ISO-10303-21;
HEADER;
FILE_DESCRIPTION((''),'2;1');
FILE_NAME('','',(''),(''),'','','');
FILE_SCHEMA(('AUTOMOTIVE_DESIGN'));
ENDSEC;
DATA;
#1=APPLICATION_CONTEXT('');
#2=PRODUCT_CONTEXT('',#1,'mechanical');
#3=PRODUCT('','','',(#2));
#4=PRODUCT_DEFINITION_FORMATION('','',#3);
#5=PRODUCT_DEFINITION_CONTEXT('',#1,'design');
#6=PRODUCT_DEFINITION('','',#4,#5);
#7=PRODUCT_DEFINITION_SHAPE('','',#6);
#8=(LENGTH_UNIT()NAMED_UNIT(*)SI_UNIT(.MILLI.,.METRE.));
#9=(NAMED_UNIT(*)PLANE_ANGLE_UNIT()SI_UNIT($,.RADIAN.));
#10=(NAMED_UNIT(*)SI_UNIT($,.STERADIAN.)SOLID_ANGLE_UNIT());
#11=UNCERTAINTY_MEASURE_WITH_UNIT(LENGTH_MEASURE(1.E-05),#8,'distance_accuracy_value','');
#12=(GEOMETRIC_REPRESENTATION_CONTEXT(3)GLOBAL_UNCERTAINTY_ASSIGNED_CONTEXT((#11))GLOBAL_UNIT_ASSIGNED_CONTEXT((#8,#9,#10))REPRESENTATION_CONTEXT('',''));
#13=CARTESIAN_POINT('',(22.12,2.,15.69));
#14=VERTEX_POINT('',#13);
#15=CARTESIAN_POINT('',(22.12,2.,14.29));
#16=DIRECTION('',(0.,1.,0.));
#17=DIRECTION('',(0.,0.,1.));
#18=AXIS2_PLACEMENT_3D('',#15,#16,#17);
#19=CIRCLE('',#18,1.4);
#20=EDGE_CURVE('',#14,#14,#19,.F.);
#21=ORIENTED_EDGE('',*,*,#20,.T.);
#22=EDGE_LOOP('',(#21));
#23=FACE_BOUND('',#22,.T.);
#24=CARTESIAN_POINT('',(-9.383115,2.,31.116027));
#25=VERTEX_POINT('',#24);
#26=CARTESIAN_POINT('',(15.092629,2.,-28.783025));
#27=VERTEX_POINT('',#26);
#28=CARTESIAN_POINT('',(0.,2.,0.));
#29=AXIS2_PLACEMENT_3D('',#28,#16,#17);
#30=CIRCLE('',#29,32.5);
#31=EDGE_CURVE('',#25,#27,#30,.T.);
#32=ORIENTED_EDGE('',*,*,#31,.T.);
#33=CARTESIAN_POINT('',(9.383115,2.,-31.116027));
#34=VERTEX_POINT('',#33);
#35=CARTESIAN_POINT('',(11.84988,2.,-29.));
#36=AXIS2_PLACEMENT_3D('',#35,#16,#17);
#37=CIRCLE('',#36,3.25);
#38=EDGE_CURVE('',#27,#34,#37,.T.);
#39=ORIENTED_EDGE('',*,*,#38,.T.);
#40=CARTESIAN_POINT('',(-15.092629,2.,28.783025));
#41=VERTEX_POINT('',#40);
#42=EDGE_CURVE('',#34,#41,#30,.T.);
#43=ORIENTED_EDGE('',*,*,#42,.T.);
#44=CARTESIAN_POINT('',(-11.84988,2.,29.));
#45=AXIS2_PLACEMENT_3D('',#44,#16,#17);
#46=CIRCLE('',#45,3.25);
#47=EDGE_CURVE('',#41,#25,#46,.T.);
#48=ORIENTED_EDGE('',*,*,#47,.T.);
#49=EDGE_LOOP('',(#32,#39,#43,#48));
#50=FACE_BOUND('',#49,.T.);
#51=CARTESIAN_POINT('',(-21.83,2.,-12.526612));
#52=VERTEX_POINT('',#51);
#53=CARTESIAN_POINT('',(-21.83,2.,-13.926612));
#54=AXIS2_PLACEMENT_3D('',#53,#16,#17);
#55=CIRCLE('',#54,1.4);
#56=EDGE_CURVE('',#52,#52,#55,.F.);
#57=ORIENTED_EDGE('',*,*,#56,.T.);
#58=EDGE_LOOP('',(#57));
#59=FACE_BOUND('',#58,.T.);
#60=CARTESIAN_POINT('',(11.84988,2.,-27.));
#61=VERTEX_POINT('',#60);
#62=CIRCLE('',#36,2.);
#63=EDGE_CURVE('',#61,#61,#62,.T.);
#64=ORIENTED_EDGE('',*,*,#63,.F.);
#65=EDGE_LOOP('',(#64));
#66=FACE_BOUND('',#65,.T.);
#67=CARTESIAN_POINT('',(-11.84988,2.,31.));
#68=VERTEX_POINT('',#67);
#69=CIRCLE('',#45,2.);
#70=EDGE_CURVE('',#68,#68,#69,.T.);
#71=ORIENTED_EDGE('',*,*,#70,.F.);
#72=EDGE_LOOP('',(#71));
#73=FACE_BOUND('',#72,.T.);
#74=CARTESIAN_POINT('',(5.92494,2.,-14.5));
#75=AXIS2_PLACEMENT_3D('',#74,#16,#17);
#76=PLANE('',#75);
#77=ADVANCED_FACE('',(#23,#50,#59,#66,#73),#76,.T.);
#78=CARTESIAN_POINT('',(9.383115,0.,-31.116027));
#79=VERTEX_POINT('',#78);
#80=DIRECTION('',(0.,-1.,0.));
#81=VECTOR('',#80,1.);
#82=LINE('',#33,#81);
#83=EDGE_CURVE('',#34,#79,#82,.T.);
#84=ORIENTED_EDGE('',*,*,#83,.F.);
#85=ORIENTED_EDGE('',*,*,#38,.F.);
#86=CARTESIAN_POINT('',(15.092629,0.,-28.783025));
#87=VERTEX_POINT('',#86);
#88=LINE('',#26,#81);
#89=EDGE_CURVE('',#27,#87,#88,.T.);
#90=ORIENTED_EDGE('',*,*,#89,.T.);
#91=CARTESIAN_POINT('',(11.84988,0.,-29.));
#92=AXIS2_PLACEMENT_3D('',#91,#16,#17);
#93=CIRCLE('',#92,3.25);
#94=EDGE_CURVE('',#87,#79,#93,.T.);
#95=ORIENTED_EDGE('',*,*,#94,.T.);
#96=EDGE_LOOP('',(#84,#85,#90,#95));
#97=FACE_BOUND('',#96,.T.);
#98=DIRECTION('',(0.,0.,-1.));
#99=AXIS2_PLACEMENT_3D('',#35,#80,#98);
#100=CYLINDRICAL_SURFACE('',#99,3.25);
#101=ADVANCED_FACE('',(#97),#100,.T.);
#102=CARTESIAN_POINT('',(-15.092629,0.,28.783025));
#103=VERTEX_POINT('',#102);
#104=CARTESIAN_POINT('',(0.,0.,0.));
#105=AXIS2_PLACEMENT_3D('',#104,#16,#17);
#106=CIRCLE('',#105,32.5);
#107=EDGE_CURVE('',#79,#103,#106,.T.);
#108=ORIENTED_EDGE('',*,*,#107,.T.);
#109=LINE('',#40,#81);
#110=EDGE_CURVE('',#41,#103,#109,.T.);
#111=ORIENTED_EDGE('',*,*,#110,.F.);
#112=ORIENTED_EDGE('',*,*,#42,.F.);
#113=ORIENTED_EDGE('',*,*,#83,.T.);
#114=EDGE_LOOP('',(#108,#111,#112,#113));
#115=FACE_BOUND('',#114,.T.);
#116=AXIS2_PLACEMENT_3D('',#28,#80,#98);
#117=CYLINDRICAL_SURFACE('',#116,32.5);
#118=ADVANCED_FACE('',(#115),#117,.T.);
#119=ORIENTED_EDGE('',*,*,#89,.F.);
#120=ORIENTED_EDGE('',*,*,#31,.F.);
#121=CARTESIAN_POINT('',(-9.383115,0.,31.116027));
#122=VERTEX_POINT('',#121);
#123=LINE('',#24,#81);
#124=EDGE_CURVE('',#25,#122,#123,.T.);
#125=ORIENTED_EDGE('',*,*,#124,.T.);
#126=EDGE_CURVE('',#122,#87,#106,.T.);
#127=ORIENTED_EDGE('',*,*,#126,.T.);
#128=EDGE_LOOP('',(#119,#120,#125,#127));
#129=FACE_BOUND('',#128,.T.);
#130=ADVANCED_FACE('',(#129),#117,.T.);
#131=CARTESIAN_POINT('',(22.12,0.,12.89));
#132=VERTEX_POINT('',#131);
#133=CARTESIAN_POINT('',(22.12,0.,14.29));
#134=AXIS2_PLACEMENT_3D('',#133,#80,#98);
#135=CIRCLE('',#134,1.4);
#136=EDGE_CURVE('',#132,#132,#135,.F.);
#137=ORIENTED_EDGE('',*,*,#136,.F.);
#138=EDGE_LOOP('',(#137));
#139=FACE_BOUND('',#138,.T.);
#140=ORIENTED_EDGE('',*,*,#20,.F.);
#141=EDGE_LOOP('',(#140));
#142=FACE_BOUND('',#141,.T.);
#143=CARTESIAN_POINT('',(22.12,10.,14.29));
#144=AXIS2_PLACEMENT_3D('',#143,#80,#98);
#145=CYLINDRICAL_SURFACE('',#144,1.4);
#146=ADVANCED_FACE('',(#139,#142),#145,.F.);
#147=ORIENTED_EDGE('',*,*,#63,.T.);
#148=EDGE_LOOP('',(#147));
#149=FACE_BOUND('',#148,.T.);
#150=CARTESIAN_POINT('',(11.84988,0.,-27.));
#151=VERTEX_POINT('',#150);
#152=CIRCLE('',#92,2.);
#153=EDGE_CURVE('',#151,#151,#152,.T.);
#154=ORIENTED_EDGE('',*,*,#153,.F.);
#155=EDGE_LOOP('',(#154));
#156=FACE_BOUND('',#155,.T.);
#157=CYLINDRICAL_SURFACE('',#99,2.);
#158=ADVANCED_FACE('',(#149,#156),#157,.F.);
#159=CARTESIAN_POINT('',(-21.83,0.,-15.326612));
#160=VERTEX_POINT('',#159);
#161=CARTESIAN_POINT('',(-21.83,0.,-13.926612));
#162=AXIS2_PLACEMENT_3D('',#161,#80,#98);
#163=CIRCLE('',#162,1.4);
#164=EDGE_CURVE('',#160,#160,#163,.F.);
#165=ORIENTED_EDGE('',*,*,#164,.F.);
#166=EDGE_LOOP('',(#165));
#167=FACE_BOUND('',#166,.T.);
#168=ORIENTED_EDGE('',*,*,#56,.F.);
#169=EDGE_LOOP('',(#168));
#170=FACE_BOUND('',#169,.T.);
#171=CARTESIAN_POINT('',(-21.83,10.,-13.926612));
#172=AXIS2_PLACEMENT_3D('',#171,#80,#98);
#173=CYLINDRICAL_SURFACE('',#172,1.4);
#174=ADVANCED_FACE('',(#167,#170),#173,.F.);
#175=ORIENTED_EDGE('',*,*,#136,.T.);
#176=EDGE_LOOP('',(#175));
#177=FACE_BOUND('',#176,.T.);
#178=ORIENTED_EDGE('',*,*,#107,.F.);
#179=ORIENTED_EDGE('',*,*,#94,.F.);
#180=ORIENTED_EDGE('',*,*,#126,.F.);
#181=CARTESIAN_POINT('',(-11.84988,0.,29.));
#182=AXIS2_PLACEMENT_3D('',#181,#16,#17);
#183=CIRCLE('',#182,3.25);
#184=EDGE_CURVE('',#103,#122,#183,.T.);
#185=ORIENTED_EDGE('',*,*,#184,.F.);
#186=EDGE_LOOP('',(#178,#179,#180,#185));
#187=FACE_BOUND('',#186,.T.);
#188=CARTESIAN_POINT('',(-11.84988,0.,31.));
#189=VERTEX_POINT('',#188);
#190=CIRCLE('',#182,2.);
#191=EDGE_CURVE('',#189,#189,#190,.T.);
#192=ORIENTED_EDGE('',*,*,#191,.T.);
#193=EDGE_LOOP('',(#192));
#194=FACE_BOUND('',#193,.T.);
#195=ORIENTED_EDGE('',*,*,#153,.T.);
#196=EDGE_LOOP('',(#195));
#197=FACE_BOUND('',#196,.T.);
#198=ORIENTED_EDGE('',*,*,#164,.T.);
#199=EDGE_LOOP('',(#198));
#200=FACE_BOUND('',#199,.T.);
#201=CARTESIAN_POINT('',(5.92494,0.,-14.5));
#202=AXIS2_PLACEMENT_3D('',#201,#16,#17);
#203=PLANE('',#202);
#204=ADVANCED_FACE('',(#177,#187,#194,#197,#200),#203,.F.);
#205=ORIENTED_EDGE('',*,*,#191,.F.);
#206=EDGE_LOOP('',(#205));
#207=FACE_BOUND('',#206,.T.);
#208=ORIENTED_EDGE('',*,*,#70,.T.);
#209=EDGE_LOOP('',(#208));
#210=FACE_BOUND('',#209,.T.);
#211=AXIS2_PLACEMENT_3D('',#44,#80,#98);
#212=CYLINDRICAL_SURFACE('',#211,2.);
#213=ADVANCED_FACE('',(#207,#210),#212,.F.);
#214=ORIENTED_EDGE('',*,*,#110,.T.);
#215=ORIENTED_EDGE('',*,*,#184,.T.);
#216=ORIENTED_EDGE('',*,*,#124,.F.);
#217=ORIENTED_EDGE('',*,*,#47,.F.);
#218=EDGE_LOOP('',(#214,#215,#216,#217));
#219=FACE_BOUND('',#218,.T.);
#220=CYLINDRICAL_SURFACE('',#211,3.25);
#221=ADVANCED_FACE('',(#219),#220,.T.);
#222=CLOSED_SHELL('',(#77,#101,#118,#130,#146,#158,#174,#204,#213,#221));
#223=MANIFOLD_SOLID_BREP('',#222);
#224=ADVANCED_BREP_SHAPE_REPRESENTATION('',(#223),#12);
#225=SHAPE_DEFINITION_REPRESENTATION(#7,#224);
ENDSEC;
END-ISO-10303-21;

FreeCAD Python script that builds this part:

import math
import FreeCAD as App
import Part
import Sketcher
from FreeCAD import Vector
Q = App.Units.Quantity

doc = App.newDocument("Part")
body = doc.addObject("PartDesign::Body", "Body")

sketch1 = body.newObject("Sketcher::SketchObject", "Sketch")
sketch1.AttachmentSupport = (doc.getObject("XZ_Plane"), [""])
sketch1.MapMode = "FlatFace"
sketch1.addGeometry(Part.ArcOfCircle(Part.Circle(Vector(0, 0, 0), Vector(0, 0, 1), 32.5), math.radians(118), math.radians(287)), False)
sketch1.addGeometry(Part.ArcOfCircle(Part.Circle(Vector(-11.8, 29, 0), Vector(0, 0, 1), 3.2), math.radians(41), math.radians(184)), False)
sketch1.addGeometry(Part.ArcOfCircle(Part.Circle(Vector(0, 0, 0), Vector(0, 0, 1), 32.5), math.radians(-62), math.radians(107)), False)
sketch1.addGeometry(Part.ArcOfCircle(Part.Circle(Vector(11.8, -29, 0), Vector(0, 0, 1), 3.2), math.radians(-139), math.radians(4)), False)
sketch1.addGeometry(Part.Circle(Vector(-11.8, 29, 0), Vector(0, 0, 1), 2), False)
sketch1.addGeometry(Part.Circle(Vector(11.8, -29, 0), Vector(0, 0, 1), 2), False)
sketch1.addConstraint(Sketcher.Constraint("Coincident", 0, 1, 1, 2))
sketch1.addConstraint(Sketcher.Constraint("Coincident", 1, 1, 2, 2))
sketch1.addConstraint(Sketcher.Constraint("Coincident", 2, 1, 3, 2))
sketch1.addConstraint(Sketcher.Constraint("Coincident", 3, 1, 0, 2))
sketch1.addConstraint(Sketcher.Constraint("Coincident", 0, 3, -1, 1))
sketch1.addConstraint(Sketcher.Constraint("Coincident", 2, 3, -1, 1))
sketch1.addConstraint(Sketcher.Constraint("Coincident", 4, 3, 1, 3))
sketch1.addConstraint(Sketcher.Constraint("Coincident", 5, 3, 3, 3))
sketch1.addConstraint(Sketcher.Constraint("Equal", 0, 2))
sketch1.addConstraint(Sketcher.Constraint("Equal", 1, 3))
sketch1.addConstraint(Sketcher.Constraint("Equal", 4, 5))
sketch1.addConstraint(Sketcher.Constraint("Symmetric", 1, 3, 3, 3, -1, 1))
sketch1.addConstraint(Sketcher.Constraint("Diameter", 4, Q("4 mm")))
sketch1.addConstraint(Sketcher.Constraint("Radius", 0, Q("32.5 mm")))
sketch1.addConstraint(Sketcher.Constraint("Radius", 1, Q("3.25 mm")))
sketch1.addConstraint(Sketcher.Constraint("DistanceY", -1, 1, 1, 3, Q("29 mm")))
sketch1.addConstraint(Sketcher.Constraint("DistanceY", 0, 1, 1, 1, Q("2.333002 mm")))
pad1 = body.newObject("PartDesign::Pad", "Pad")
pad1.Profile = sketch1
pad1.Length = 2
pad1.Reversed = True

sketch2 = body.newObject("Sketcher::SketchObject", "Sketch001")
sketch2.AttachmentSupport = (doc.getObject("XZ_Plane"), [""])
sketch2.MapMode = "FlatFace"
sketch2.addGeometry(Part.Circle(Vector(-21.8, -13.9, 0), Vector(0, 0, 1), 1.4), False)
sketch2.addGeometry(Part.Circle(Vector(22.1, 14.3, 0), Vector(0, 0, 1), 1.4), False)
sketch2.addConstraint(Sketcher.Constraint("Equal", 0, 1))
sketch2.addConstraint(Sketcher.Constraint("Diameter", 0, Q("2.8 mm")))
sketch2.addConstraint(Sketcher.Constraint("DistanceX", 0, 3, -1, 1, Q("21.83 mm")))
sketch2.addConstraint(Sketcher.Constraint("DistanceX", -1, 1, 1, 3, Q("22.12 mm")))
sketch2.addConstraint(Sketcher.Constraint("DistanceY", -1, 1, 1, 3, Q("14.29 mm")))
sketch2.addConstraint(Sketcher.Constraint("DistanceY", 0, 3, -1, 1, Q("13.926612 mm")))
pocket1 = body.newObject("PartDesign::Pocket", "Pocket")
pocket1.Profile = sketch2
pocket1.Length = 10

doc.recompute()
